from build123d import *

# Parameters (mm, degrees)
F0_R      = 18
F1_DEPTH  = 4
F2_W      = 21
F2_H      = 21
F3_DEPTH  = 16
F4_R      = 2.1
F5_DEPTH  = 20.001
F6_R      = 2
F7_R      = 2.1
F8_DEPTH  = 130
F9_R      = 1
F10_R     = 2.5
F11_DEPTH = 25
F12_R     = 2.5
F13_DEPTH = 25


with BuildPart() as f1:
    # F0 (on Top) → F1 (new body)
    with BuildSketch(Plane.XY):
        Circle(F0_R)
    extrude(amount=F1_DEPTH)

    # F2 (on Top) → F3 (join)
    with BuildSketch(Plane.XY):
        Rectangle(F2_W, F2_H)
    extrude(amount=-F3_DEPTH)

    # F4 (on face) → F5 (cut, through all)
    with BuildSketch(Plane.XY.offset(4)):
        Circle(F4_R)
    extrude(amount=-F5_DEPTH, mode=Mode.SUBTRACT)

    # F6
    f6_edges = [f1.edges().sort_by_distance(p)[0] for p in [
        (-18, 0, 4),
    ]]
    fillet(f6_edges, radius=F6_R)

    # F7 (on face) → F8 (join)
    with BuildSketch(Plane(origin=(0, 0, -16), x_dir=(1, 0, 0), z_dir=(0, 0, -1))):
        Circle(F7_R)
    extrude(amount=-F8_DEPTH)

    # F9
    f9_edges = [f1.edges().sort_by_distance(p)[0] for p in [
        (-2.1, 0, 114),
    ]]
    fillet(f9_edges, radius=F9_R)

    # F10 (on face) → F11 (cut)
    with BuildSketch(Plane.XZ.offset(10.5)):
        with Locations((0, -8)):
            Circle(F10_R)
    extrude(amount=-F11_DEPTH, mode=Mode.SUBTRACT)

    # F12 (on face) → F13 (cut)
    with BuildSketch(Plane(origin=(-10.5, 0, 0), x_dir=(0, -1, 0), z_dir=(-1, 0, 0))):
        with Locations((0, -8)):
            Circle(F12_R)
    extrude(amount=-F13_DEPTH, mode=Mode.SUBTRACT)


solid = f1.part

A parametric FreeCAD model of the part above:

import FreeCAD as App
import Part
import Sketcher
from FreeCAD import Vector


def edges_at(feature, points):
    """Names of the edges that pass closest to the given points."""
    edges = feature.Shape.Edges
    near = lambda p: min(range(len(edges)), key=lambda i: edges[i].distToShape(Part.Vertex(*p))[0])
    return sorted({f"Edge{near(p) + 1}" for p in points})


def add_polygon(sketch, points):
    """Adds a closed chain of lines whose ends are joined by coincident constraints."""
    first, n = sketch.GeometryCount, len(points)
    for a, b in zip(points, points[1:] + points[:1]):
        sketch.addGeometry(Part.LineSegment(App.Vector(*a, 0), App.Vector(*b, 0)), False)
    for i in range(n):
        sketch.addConstraint(Sketcher.Constraint("Coincident", first + i, 2, first + (i + 1) % n, 1))

doc = App.newDocument("Part")
params = doc.addObject("Spreadsheet::Sheet", "Params")
for row, (alias, value) in enumerate([
    ("sketch1_diameter", "36 mm"),
    ("pad1_length", "4 mm"),
    ("sketch2_width", "21 mm"),
    ("pad2_length", "16 mm"),
    ("sketch3_diameter", "4.2 mm"),
    ("fillet_radius", "2 mm"),
    ("sketch4_diameter", "4.2 mm"),
    ("pad3_length", "130 mm"),
    ("fillet2_radius", "1 mm"),
    ("sketch5_diameter", "5 mm"),
    ("pocket2_length", "25 mm"),
    ("sketch6_diameter", "5 mm"),
    ("pocket3_length", "25 mm"),
], start=1):
    params.set(f"A{row}", alias)
    params.set(f"B{row}", "=" + value)
    params.setAlias(f"B{row}", alias)

body = doc.addObject("PartDesign::Body", "Body")

# Sketch on XY plane
sketch1 = doc.addObject("Sketcher::SketchObject", "Sketch")
body.addObject(sketch1)
sketch1.AttachmentSupport = (doc.XY_Plane, [""])
sketch1.MapMode = "FlatFace"
sketch1.addGeometry(Part.Circle(Vector(0, 0, 0), Vector(0, 0, 1), 18), False)
sketch1.addConstraint([
    Sketcher.Constraint("Coincident", 0, 3, -1, 1),
    Sketcher.Constraint("Diameter", 0, 36.0),
])
sketch1.setExpression("Constraints[1]", "Params.sketch1_diameter")
pad1 = doc.addObject("PartDesign::Pad", "Pad")
body.addObject(pad1)
pad1.Profile = sketch1
pad1.setExpression("Length", "Params.pad1_length")

# Sketch on XY plane
sketch2 = doc.addObject("Sketcher::SketchObject", "Sketch001")
body.addObject(sketch2)
sketch2.AttachmentSupport = (doc.XY_Plane, [""])
sketch2.MapMode = "FlatFace"
add_polygon(sketch2, [(-10, 10), (-10, -10), (10, -10), (10, 10)])  # lines 0-3
sketch2.addConstraint([
    Sketcher.Constraint("Vertical", 0),
    Sketcher.Constraint("Horizontal", 1),
    Sketcher.Constraint("Vertical", 2),
    Sketcher.Constraint("Horizontal", 3),
    Sketcher.Constraint("Symmetric", 0, 2, 2, 2, -1, 1),
    Sketcher.Constraint("Equal", 3, 0),
    Sketcher.Constraint("DistanceX", 1, 1, 1, 2, 21.0),
])
sketch2.setExpression("Constraints[10]", "Params.sketch2_width")
pad2 = doc.addObject("PartDesign::Pad", "Pad001")
body.addObject(pad2)
pad2.Profile = sketch2
pad2.setExpression("Length", "Params.pad2_length")
pad2.Reversed = True

# Sketch on XY plane
sketch3 = doc.addObject("Sketcher::SketchObject", "Sketch002")
body.addObject(sketch3)
sketch3.AttachmentSupport = (doc.XY_Plane, [""])
sketch3.MapMode = "FlatFace"
sketch3.AttachmentOffset = App.Placement(Vector(0, 0, 4), App.Rotation())
sketch3.addGeometry(Part.Circle(Vector(0, 0, 0), Vector(0, 0, 1), 2.1), False)
sketch3.addConstraint([
    Sketcher.Constraint("Coincident", 0, 3, -1, 1),
    Sketcher.Constraint("Diameter", 0, 4.2),
])
sketch3.setExpression("Constraints[1]", "Params.sketch3_diameter")
pocket1 = doc.addObject("PartDesign::Pocket", "Pocket")
body.addObject(pocket1)
pocket1.Profile = sketch3
pocket1.Type = "ThroughAll"
doc.recompute()

fillet = doc.addObject("PartDesign::Fillet", "Fillet")
body.addObject(fillet)
fillet.Base = (pocket1, edges_at(pocket1, [(-18, 0, 4)]))
fillet.setExpression("Radius", "Params.fillet_radius")

# Sketch on XY plane
sketch4 = doc.addObject("Sketcher::SketchObject", "Sketch003")
body.addObject(sketch4)
sketch4.AttachmentSupport = (doc.XY_Plane, [""])
sketch4.MapMode = "FlatFace"
sketch4.AttachmentOffset = App.Placement(Vector(0, 0, -16), App.Rotation())
sketch4.addGeometry(Part.Circle(Vector(0, 0, 0), Vector(0, 0, 1), 2.1), False)
sketch4.addConstraint([
    Sketcher.Constraint("Coincident", 0, 3, -1, 1),
    Sketcher.Constraint("Diameter", 0, 4.2),
])
sketch4.setExpression("Constraints[1]", "Params.sketch4_diameter")
pad3 = doc.addObject("PartDesign::Pad", "Pad002")
body.addObject(pad3)
pad3.Profile = sketch4
pad3.setExpression("Length", "Params.pad3_length")
doc.recompute()

fillet2 = doc.addObject("PartDesign::Fillet", "Fillet001")
body.addObject(fillet2)
fillet2.Base = (pad3, edges_at(pad3, [(-2.1, 0, 114)]))
fillet2.setExpression("Radius", "Params.fillet2_radius")

# Sketch on XZ plane
sketch5 = doc.addObject("Sketcher::SketchObject", "Sketch004")
body.addObject(sketch5)
sketch5.AttachmentSupport = (doc.XZ_Plane, [""])
sketch5.MapMode = "FlatFace"
sketch5.AttachmentOffset = App.Placement(Vector(0, 0, 10.5), App.Rotation())
sketch5.addGeometry(Part.Circle(Vector(0, -8, 0), Vector(0, 0, 1), 2.5), False)
sketch5.addConstraint([
    Sketcher.Constraint("PointOnObject", 0, 3, -2),
    Sketcher.Constraint("Diameter", 0, 5.0),
    Sketcher.Constraint("DistanceY", 0, 3, -1, 1, 8.0),
])
sketch5.setExpression("Constraints[1]", "Params.sketch5_diameter")
pocket2 = doc.addObject("PartDesign::Pocket", "Pocket001")
body.addObject(pocket2)
pocket2.Profile = sketch5
pocket2.setExpression("Length", "Params.pocket2_length")

# Sketch on YZ plane
sketch6 = doc.addObject("Sketcher::SketchObject", "Sketch005")
body.addObject(sketch6)
sketch6.AttachmentSupport = (doc.YZ_Plane, [""])
sketch6.MapMode = "FlatFace"
sketch6.AttachmentOffset = App.Placement(Vector(0, 0, -10.5), App.Rotation())
sketch6.addGeometry(Part.Circle(Vector(0, -8, 0), Vector(0, 0, 1), 2.5), False)
sketch6.addConstraint([
    Sketcher.Constraint("PointOnObject", 0, 3, -2),
    Sketcher.Constraint("Diameter", 0, 5.0),
    Sketcher.Constraint("DistanceY", 0, 3, -1, 1, 8.0),
])
sketch6.setExpression("Constraints[1]", "Params.sketch6_diameter")
pocket3 = doc.addObject("PartDesign::Pocket", "Pocket002")
body.addObject(pocket3)
pocket3.Profile = sketch6
pocket3.setExpression("Length", "Params.pocket3_length")
pocket3.Reversed = True

doc.recompute()
